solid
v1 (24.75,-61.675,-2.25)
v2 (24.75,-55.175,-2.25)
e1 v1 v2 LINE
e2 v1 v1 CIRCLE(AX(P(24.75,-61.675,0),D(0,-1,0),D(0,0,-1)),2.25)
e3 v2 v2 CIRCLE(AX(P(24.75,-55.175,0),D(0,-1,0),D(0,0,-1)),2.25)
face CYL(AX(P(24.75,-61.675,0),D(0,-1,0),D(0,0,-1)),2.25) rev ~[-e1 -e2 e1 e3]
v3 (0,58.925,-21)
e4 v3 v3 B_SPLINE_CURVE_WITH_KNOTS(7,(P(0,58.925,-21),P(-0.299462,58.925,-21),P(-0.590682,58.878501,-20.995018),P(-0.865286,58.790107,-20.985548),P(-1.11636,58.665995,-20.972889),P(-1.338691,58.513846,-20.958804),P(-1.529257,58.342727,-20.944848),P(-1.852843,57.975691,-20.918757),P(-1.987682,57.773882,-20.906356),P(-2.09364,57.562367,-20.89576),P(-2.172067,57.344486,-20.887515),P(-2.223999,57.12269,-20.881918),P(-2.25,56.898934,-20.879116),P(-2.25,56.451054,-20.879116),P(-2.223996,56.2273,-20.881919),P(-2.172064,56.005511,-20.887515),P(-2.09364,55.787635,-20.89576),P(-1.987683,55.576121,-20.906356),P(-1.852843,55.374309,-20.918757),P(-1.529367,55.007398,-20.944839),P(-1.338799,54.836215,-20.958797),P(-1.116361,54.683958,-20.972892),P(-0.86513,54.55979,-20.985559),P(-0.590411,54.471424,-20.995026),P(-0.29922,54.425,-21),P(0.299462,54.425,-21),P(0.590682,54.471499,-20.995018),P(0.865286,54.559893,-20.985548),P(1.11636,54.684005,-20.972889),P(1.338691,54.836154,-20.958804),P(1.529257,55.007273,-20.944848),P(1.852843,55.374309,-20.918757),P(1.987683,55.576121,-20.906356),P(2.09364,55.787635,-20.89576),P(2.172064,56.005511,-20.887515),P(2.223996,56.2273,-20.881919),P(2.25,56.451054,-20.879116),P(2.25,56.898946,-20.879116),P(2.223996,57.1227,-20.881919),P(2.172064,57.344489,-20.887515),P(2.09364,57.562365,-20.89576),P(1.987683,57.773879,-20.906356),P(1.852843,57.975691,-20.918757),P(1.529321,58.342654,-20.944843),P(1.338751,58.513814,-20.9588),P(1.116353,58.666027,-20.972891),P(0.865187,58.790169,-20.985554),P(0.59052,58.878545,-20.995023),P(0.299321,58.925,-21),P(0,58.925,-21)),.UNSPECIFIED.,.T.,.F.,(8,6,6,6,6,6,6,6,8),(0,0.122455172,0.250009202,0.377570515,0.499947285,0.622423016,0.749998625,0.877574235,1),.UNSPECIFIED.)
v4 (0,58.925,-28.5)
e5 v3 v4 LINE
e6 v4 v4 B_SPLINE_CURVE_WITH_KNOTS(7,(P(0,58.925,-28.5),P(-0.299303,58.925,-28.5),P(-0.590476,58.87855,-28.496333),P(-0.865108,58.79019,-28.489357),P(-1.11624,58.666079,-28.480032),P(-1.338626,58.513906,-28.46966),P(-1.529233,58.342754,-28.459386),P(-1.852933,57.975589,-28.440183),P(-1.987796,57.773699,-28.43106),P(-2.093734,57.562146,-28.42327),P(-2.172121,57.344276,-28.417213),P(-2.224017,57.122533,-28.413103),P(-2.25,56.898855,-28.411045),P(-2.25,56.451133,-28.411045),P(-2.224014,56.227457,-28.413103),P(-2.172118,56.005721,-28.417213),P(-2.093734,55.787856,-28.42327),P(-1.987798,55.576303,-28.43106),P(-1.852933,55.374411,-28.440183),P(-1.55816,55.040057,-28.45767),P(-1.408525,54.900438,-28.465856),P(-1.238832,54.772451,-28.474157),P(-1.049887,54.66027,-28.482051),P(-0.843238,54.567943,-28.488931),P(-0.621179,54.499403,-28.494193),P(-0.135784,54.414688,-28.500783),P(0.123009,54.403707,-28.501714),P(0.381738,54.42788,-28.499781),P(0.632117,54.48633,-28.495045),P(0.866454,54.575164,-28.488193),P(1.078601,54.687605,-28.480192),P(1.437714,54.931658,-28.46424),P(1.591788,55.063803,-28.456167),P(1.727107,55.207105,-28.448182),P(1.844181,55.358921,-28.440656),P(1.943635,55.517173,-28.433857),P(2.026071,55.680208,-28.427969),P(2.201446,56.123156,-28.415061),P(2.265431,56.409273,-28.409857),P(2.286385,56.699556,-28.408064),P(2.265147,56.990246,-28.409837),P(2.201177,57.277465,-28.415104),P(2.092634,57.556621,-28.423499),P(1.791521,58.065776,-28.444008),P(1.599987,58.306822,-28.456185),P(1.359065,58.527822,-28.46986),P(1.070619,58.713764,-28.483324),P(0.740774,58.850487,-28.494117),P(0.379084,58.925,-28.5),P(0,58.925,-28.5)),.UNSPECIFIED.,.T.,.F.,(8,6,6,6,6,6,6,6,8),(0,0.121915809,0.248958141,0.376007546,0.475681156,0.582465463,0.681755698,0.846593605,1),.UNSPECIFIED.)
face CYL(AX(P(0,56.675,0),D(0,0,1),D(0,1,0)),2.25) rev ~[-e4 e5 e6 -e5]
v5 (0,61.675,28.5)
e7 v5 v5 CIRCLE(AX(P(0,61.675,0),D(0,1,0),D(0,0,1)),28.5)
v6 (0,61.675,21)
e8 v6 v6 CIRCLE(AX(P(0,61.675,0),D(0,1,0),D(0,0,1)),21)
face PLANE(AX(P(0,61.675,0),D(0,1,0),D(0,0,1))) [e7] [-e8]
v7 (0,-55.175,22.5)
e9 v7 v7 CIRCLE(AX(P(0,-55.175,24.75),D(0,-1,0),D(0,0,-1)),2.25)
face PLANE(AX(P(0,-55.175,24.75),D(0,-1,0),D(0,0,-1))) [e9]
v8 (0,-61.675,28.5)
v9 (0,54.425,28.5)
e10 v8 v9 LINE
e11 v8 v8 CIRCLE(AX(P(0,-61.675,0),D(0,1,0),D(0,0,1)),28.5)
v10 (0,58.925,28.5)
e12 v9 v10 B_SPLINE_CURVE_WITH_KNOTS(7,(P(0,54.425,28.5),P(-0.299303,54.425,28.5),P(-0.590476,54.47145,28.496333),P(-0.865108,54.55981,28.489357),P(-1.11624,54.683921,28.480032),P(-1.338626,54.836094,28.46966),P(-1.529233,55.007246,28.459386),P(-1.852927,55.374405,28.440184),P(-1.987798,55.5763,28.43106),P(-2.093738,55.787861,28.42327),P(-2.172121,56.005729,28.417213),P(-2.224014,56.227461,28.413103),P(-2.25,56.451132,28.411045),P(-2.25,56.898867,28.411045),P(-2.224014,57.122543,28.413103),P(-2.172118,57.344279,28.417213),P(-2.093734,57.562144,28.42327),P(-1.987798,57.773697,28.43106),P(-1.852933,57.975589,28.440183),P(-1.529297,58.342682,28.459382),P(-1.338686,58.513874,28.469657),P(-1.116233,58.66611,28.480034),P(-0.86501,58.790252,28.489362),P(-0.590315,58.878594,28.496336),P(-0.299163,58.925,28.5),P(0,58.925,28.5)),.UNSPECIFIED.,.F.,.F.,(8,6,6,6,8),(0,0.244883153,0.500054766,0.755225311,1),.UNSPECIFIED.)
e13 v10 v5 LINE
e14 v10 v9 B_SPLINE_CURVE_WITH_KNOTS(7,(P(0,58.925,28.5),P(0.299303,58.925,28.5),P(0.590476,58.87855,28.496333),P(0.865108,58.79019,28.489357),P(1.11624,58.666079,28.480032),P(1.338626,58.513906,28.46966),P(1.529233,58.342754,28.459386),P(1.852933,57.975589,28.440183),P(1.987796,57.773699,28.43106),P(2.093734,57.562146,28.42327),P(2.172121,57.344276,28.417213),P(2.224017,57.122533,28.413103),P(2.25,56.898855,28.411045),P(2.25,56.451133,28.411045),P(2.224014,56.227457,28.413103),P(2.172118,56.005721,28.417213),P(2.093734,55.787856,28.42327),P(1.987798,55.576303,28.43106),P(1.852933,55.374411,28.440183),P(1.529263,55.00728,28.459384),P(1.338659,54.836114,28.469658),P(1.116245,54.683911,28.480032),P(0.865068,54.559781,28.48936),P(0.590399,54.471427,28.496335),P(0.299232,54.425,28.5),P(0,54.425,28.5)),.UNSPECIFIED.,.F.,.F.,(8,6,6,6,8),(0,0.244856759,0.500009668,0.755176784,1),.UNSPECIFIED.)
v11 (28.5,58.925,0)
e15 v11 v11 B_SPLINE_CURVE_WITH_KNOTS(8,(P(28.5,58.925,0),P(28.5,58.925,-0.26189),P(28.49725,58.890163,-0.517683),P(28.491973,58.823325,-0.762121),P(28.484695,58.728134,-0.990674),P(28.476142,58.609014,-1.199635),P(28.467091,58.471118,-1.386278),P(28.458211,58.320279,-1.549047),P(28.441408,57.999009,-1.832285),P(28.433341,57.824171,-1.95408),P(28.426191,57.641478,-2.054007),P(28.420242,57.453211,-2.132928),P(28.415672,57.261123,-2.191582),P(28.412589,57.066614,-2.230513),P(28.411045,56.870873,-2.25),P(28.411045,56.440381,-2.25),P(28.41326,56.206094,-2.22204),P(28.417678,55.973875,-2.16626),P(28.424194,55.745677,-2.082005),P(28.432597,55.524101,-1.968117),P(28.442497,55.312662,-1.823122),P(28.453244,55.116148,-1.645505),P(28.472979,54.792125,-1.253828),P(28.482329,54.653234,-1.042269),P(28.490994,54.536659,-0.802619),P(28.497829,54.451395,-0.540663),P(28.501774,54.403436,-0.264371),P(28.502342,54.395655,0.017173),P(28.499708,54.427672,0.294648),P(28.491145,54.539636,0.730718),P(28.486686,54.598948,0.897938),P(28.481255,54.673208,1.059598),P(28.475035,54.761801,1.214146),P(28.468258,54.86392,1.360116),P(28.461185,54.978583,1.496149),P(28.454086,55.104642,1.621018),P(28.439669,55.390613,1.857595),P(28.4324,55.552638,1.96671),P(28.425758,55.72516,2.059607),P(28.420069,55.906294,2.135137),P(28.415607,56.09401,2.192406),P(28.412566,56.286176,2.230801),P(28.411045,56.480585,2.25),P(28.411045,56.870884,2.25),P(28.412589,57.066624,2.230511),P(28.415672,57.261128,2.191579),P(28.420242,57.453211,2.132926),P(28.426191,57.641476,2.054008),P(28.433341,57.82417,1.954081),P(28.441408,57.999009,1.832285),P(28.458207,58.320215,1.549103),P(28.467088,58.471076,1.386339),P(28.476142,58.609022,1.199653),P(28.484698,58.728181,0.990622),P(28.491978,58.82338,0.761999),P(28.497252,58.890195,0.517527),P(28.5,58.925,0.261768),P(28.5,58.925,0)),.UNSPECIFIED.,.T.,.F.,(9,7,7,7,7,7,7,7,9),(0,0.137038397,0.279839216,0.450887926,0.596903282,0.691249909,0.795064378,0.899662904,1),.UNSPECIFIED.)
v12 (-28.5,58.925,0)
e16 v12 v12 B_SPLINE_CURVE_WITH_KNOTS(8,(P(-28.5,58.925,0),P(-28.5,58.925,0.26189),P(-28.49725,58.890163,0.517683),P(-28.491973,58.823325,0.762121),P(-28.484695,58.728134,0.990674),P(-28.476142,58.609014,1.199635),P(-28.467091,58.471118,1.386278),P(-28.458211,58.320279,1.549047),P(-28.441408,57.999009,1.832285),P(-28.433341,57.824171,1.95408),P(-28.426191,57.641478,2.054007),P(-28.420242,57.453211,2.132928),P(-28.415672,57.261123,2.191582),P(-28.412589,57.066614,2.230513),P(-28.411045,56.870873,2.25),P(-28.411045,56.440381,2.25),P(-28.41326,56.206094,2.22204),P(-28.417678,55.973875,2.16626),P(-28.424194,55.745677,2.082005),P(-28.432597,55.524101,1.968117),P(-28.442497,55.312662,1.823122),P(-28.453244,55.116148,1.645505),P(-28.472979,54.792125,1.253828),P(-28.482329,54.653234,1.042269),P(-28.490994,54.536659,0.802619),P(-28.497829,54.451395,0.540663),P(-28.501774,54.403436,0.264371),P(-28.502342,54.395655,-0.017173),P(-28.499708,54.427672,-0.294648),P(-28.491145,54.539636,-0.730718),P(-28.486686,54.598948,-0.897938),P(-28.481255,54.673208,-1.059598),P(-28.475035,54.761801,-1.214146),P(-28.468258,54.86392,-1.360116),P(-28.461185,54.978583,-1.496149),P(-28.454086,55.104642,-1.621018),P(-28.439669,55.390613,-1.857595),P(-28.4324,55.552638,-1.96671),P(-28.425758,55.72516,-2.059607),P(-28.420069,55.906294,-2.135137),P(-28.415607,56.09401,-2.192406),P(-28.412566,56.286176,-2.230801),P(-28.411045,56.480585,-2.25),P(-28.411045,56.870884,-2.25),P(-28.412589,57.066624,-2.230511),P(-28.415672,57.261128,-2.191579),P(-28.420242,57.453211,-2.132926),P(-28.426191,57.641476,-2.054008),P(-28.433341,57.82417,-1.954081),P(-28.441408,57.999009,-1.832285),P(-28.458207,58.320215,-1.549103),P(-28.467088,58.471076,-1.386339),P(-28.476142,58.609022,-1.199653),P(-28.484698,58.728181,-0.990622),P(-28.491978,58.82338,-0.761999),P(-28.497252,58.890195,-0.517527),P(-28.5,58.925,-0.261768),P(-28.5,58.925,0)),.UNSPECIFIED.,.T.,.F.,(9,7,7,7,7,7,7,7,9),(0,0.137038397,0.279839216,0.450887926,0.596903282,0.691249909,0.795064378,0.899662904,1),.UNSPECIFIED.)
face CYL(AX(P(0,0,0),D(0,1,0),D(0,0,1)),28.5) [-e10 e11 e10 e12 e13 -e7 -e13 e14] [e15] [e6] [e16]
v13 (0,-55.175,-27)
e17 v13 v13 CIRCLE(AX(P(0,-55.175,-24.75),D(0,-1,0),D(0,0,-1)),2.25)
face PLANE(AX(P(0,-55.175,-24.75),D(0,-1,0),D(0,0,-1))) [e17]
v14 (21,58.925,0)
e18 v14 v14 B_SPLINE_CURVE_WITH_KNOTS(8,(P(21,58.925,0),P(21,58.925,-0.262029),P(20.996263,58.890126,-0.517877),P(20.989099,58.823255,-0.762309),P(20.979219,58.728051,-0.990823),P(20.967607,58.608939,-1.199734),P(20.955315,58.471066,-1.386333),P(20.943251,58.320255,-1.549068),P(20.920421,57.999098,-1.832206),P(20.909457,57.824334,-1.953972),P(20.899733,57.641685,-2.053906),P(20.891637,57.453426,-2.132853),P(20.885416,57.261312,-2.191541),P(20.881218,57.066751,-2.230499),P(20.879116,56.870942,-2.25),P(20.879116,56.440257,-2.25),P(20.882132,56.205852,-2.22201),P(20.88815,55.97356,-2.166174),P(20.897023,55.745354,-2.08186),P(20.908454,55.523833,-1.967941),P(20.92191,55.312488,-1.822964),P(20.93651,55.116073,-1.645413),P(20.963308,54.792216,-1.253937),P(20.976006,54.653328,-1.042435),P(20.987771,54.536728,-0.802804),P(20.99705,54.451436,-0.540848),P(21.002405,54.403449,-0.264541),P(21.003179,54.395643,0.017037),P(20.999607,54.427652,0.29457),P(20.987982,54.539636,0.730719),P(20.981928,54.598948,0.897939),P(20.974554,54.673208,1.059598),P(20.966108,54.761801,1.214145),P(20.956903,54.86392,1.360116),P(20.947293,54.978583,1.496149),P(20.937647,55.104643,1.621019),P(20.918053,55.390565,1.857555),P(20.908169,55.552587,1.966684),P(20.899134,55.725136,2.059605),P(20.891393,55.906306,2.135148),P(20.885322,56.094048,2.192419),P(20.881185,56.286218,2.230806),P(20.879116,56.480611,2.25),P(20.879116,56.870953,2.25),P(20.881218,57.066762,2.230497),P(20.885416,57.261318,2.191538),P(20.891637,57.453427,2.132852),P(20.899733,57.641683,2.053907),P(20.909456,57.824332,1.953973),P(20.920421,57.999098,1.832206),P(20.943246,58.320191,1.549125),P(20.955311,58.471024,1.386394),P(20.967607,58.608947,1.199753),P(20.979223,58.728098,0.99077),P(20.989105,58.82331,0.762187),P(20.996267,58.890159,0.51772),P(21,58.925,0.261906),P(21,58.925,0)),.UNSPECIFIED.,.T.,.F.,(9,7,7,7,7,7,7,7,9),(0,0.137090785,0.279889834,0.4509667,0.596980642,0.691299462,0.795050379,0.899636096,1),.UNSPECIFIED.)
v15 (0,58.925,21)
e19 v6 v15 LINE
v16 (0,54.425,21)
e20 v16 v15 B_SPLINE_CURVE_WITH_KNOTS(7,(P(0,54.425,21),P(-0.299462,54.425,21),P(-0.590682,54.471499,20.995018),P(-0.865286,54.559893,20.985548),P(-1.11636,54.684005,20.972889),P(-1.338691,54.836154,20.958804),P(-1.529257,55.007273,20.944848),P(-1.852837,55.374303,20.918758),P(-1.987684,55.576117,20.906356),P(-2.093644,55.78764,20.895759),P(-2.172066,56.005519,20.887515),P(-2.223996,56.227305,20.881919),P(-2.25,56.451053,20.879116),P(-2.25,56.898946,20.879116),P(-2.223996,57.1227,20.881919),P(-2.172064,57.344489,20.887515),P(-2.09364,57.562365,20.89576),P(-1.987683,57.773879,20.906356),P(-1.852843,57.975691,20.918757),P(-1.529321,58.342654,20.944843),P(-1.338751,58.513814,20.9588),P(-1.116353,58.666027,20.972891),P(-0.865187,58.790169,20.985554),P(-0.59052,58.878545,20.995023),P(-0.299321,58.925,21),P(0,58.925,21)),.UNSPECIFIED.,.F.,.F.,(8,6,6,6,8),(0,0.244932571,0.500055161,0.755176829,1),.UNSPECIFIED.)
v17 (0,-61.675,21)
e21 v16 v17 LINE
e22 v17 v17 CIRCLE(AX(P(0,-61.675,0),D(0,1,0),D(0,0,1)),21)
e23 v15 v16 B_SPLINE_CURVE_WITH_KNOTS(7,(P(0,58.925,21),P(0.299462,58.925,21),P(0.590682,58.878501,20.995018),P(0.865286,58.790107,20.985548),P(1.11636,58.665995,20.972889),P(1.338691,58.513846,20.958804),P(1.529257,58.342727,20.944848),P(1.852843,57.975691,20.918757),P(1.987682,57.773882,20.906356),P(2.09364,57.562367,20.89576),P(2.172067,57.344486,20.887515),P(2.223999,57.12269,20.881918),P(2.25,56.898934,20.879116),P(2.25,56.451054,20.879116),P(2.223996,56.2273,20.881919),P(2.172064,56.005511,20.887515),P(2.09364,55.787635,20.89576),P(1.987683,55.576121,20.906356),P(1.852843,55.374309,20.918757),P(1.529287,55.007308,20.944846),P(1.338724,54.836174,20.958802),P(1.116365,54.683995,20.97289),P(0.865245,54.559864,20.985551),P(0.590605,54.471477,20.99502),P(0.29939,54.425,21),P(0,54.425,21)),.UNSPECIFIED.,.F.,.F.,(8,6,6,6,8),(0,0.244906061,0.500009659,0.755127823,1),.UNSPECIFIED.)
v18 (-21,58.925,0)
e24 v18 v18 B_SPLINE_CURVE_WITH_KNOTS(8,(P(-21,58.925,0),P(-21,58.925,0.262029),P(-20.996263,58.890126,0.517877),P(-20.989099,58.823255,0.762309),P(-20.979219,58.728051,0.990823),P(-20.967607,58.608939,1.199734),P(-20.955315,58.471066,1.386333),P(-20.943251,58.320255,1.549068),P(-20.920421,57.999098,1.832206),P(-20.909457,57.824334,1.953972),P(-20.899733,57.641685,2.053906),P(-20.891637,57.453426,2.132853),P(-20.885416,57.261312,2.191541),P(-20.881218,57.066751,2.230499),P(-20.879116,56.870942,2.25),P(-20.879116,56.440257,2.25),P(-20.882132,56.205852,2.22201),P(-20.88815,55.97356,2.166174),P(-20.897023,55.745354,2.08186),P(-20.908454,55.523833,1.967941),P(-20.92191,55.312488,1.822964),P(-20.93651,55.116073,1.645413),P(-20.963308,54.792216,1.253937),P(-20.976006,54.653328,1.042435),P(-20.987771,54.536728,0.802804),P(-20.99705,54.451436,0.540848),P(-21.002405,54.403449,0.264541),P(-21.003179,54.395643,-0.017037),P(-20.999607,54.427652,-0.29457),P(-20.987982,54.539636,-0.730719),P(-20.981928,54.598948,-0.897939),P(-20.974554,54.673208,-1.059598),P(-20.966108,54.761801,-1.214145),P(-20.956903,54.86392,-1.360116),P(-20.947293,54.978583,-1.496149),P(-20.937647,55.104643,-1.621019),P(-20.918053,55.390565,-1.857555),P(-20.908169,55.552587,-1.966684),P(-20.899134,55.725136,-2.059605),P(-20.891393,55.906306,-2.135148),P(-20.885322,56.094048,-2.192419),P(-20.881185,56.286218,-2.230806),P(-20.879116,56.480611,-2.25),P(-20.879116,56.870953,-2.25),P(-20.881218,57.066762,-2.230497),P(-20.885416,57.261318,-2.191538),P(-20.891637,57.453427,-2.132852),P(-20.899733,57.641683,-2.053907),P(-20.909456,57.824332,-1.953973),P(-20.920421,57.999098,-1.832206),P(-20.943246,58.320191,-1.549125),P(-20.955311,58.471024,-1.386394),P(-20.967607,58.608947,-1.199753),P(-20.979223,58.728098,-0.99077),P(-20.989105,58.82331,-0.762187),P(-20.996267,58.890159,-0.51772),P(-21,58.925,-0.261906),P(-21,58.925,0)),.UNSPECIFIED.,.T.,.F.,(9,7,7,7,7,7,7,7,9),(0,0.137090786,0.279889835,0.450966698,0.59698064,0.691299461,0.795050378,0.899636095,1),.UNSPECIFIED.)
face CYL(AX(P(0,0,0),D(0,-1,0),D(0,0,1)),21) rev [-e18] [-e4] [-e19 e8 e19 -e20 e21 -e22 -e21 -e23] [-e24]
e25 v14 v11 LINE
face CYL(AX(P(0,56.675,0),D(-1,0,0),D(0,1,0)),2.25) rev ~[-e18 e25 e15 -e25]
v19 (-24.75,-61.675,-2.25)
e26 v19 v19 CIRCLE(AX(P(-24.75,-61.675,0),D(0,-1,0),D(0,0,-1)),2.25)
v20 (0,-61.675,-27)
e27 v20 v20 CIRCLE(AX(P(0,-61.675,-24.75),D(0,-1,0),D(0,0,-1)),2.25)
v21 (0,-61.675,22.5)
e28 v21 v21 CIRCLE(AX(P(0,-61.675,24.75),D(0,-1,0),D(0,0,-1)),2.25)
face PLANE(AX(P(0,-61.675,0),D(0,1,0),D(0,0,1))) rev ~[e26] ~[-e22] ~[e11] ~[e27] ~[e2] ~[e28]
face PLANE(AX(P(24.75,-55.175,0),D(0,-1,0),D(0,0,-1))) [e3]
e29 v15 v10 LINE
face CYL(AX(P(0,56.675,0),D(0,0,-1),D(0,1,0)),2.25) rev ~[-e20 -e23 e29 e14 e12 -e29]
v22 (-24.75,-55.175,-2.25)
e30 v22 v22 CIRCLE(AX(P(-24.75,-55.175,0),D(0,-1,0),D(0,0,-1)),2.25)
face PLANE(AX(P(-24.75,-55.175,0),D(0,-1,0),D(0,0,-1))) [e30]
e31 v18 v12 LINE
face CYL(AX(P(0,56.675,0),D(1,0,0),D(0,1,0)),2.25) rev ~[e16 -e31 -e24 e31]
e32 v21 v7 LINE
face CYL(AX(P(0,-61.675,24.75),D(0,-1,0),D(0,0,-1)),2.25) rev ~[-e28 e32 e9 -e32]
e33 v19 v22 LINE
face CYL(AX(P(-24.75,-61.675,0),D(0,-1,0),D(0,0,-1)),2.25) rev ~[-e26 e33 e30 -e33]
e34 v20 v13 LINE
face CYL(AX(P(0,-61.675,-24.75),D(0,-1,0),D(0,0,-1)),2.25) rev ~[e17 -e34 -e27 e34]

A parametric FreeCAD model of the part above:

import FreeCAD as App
import Part
import Sketcher
Q = App.Units.Quantity

doc = App.newDocument("Part")
body = doc.addObject("PartDesign::Body", "Body")

# Sketch on XZ plane
sketch1 = doc.addObject("Sketcher::SketchObject", "Sketch")
body.addObject(sketch1)
sketch1.AttachmentSupport = (doc.XZ_Plane, [""])
sketch1.MapMode = "FlatFace"
sketch1.addGeometry([
    Part.Circle(App.Vector(0, 0, 0), App.Vector(0, 0, 1), 28),
    Part.Circle(App.Vector(0, 0, 0), App.Vector(0, 0, 1), 21),
], False)
sketch1.addConstraint([
    Sketcher.Constraint("Coincident", 0, 3, -1, 1),
    Sketcher.Constraint("Coincident", 1, 3, -1, 1),
    Sketcher.Constraint("Diameter", 0, Q("57 mm")),
    Sketcher.Constraint("Diameter", 1, Q("42 mm")),
])
pad1 = doc.addObject("PartDesign::Pad", "Pad")
body.addObject(pad1)
pad1.Profile = sketch1
pad1.Length = 123.35
pad1.Midplane = True

# Sketch on XY plane
sketch2 = doc.addObject("Sketcher::SketchObject", "Sketch001")
body.addObject(sketch2)
sketch2.AttachmentSupport = (doc.XY_Plane, [""])
sketch2.MapMode = "FlatFace"
sketch2.addGeometry(Part.Circle(App.Vector(0, 56.7, 0), App.Vector(0, 0, 1), 2.2), False)
sketch2.addConstraint([
    Sketcher.Constraint("PointOnObject", 0, 3, -2),
    Sketcher.Constraint("Diameter", 0, Q("4.5 mm")),
    Sketcher.Constraint("DistanceY", -1, 1, 0, 3, Q("56.675 mm")),
])
pocket1 = doc.addObject("PartDesign::Pocket", "Pocket")
body.addObject(pocket1)
pocket1.Profile = sketch2
pocket1.Type = "ThroughAll"
doc.recompute()

polarpattern = doc.addObject("PartDesign::PolarPattern", "PolarPattern")
body.addObject(polarpattern)
polarpattern.Originals = [pocket1]
polarpattern.Axis = (doc.Y_Axis, [""])
polarpattern.Angle = 360
polarpattern.Occurrences = 4
body.Tip = polarpattern

# Sketch on XZ plane
sketch3 = doc.addObject("Sketcher::SketchObject", "Sketch002")
body.addObject(sketch3)
sketch3.AttachmentSupport = (doc.XZ_Plane, [""])
sketch3.MapMode = "FlatFace"
sketch3.AttachmentOffset = App.Placement(App.Vector(0, 0, 61.675), App.Rotation())
sketch3.addGeometry([
    Part.Circle(App.Vector(0, 24.8, 0), App.Vector(0, 0, 1), 2.2),
    Part.Circle(App.Vector(24.8, 0, 0), App.Vector(0, 0, 1), 2.2),
    Part.Circle(App.Vector(0, -24.8, 0), App.Vector(0, 0, 1), 2.2),
    Part.Circle(App.Vector(-24.8, 0, 0), App.Vector(0, 0, 1), 2.2),
], False)
sketch3.addConstraint([
    Sketcher.Constraint("Equal", 0, 1),
    Sketcher.Constraint("Equal", 1, 2),
    Sketcher.Constraint("Equal", 2, 3),
    Sketcher.Constraint("Symmetric", 0, 3, 2, 3, -1, 1),
    Sketcher.Constraint("Symmetric", 1, 3, 3, 3, -1, 1),
    Sketcher.Constraint("PointOnObject", 0, 3, -2),
    Sketcher.Constraint("PointOnObject", 1, 3, -1),
    Sketcher.Constraint("Diameter", 0, Q("4.5 mm")),
    Sketcher.Constraint("DistanceY", 2, 3, 0, 3, Q("49.5 mm")),
    Sketcher.Constraint("DistanceX", 3, 3, 1, 3, Q("49.5 mm")),
])
pocket2 = doc.addObject("PartDesign::Pocket", "Pocket001")
body.addObject(pocket2)
pocket2.Profile = sketch3
pocket2.Length = 6.5

doc.recompute()
